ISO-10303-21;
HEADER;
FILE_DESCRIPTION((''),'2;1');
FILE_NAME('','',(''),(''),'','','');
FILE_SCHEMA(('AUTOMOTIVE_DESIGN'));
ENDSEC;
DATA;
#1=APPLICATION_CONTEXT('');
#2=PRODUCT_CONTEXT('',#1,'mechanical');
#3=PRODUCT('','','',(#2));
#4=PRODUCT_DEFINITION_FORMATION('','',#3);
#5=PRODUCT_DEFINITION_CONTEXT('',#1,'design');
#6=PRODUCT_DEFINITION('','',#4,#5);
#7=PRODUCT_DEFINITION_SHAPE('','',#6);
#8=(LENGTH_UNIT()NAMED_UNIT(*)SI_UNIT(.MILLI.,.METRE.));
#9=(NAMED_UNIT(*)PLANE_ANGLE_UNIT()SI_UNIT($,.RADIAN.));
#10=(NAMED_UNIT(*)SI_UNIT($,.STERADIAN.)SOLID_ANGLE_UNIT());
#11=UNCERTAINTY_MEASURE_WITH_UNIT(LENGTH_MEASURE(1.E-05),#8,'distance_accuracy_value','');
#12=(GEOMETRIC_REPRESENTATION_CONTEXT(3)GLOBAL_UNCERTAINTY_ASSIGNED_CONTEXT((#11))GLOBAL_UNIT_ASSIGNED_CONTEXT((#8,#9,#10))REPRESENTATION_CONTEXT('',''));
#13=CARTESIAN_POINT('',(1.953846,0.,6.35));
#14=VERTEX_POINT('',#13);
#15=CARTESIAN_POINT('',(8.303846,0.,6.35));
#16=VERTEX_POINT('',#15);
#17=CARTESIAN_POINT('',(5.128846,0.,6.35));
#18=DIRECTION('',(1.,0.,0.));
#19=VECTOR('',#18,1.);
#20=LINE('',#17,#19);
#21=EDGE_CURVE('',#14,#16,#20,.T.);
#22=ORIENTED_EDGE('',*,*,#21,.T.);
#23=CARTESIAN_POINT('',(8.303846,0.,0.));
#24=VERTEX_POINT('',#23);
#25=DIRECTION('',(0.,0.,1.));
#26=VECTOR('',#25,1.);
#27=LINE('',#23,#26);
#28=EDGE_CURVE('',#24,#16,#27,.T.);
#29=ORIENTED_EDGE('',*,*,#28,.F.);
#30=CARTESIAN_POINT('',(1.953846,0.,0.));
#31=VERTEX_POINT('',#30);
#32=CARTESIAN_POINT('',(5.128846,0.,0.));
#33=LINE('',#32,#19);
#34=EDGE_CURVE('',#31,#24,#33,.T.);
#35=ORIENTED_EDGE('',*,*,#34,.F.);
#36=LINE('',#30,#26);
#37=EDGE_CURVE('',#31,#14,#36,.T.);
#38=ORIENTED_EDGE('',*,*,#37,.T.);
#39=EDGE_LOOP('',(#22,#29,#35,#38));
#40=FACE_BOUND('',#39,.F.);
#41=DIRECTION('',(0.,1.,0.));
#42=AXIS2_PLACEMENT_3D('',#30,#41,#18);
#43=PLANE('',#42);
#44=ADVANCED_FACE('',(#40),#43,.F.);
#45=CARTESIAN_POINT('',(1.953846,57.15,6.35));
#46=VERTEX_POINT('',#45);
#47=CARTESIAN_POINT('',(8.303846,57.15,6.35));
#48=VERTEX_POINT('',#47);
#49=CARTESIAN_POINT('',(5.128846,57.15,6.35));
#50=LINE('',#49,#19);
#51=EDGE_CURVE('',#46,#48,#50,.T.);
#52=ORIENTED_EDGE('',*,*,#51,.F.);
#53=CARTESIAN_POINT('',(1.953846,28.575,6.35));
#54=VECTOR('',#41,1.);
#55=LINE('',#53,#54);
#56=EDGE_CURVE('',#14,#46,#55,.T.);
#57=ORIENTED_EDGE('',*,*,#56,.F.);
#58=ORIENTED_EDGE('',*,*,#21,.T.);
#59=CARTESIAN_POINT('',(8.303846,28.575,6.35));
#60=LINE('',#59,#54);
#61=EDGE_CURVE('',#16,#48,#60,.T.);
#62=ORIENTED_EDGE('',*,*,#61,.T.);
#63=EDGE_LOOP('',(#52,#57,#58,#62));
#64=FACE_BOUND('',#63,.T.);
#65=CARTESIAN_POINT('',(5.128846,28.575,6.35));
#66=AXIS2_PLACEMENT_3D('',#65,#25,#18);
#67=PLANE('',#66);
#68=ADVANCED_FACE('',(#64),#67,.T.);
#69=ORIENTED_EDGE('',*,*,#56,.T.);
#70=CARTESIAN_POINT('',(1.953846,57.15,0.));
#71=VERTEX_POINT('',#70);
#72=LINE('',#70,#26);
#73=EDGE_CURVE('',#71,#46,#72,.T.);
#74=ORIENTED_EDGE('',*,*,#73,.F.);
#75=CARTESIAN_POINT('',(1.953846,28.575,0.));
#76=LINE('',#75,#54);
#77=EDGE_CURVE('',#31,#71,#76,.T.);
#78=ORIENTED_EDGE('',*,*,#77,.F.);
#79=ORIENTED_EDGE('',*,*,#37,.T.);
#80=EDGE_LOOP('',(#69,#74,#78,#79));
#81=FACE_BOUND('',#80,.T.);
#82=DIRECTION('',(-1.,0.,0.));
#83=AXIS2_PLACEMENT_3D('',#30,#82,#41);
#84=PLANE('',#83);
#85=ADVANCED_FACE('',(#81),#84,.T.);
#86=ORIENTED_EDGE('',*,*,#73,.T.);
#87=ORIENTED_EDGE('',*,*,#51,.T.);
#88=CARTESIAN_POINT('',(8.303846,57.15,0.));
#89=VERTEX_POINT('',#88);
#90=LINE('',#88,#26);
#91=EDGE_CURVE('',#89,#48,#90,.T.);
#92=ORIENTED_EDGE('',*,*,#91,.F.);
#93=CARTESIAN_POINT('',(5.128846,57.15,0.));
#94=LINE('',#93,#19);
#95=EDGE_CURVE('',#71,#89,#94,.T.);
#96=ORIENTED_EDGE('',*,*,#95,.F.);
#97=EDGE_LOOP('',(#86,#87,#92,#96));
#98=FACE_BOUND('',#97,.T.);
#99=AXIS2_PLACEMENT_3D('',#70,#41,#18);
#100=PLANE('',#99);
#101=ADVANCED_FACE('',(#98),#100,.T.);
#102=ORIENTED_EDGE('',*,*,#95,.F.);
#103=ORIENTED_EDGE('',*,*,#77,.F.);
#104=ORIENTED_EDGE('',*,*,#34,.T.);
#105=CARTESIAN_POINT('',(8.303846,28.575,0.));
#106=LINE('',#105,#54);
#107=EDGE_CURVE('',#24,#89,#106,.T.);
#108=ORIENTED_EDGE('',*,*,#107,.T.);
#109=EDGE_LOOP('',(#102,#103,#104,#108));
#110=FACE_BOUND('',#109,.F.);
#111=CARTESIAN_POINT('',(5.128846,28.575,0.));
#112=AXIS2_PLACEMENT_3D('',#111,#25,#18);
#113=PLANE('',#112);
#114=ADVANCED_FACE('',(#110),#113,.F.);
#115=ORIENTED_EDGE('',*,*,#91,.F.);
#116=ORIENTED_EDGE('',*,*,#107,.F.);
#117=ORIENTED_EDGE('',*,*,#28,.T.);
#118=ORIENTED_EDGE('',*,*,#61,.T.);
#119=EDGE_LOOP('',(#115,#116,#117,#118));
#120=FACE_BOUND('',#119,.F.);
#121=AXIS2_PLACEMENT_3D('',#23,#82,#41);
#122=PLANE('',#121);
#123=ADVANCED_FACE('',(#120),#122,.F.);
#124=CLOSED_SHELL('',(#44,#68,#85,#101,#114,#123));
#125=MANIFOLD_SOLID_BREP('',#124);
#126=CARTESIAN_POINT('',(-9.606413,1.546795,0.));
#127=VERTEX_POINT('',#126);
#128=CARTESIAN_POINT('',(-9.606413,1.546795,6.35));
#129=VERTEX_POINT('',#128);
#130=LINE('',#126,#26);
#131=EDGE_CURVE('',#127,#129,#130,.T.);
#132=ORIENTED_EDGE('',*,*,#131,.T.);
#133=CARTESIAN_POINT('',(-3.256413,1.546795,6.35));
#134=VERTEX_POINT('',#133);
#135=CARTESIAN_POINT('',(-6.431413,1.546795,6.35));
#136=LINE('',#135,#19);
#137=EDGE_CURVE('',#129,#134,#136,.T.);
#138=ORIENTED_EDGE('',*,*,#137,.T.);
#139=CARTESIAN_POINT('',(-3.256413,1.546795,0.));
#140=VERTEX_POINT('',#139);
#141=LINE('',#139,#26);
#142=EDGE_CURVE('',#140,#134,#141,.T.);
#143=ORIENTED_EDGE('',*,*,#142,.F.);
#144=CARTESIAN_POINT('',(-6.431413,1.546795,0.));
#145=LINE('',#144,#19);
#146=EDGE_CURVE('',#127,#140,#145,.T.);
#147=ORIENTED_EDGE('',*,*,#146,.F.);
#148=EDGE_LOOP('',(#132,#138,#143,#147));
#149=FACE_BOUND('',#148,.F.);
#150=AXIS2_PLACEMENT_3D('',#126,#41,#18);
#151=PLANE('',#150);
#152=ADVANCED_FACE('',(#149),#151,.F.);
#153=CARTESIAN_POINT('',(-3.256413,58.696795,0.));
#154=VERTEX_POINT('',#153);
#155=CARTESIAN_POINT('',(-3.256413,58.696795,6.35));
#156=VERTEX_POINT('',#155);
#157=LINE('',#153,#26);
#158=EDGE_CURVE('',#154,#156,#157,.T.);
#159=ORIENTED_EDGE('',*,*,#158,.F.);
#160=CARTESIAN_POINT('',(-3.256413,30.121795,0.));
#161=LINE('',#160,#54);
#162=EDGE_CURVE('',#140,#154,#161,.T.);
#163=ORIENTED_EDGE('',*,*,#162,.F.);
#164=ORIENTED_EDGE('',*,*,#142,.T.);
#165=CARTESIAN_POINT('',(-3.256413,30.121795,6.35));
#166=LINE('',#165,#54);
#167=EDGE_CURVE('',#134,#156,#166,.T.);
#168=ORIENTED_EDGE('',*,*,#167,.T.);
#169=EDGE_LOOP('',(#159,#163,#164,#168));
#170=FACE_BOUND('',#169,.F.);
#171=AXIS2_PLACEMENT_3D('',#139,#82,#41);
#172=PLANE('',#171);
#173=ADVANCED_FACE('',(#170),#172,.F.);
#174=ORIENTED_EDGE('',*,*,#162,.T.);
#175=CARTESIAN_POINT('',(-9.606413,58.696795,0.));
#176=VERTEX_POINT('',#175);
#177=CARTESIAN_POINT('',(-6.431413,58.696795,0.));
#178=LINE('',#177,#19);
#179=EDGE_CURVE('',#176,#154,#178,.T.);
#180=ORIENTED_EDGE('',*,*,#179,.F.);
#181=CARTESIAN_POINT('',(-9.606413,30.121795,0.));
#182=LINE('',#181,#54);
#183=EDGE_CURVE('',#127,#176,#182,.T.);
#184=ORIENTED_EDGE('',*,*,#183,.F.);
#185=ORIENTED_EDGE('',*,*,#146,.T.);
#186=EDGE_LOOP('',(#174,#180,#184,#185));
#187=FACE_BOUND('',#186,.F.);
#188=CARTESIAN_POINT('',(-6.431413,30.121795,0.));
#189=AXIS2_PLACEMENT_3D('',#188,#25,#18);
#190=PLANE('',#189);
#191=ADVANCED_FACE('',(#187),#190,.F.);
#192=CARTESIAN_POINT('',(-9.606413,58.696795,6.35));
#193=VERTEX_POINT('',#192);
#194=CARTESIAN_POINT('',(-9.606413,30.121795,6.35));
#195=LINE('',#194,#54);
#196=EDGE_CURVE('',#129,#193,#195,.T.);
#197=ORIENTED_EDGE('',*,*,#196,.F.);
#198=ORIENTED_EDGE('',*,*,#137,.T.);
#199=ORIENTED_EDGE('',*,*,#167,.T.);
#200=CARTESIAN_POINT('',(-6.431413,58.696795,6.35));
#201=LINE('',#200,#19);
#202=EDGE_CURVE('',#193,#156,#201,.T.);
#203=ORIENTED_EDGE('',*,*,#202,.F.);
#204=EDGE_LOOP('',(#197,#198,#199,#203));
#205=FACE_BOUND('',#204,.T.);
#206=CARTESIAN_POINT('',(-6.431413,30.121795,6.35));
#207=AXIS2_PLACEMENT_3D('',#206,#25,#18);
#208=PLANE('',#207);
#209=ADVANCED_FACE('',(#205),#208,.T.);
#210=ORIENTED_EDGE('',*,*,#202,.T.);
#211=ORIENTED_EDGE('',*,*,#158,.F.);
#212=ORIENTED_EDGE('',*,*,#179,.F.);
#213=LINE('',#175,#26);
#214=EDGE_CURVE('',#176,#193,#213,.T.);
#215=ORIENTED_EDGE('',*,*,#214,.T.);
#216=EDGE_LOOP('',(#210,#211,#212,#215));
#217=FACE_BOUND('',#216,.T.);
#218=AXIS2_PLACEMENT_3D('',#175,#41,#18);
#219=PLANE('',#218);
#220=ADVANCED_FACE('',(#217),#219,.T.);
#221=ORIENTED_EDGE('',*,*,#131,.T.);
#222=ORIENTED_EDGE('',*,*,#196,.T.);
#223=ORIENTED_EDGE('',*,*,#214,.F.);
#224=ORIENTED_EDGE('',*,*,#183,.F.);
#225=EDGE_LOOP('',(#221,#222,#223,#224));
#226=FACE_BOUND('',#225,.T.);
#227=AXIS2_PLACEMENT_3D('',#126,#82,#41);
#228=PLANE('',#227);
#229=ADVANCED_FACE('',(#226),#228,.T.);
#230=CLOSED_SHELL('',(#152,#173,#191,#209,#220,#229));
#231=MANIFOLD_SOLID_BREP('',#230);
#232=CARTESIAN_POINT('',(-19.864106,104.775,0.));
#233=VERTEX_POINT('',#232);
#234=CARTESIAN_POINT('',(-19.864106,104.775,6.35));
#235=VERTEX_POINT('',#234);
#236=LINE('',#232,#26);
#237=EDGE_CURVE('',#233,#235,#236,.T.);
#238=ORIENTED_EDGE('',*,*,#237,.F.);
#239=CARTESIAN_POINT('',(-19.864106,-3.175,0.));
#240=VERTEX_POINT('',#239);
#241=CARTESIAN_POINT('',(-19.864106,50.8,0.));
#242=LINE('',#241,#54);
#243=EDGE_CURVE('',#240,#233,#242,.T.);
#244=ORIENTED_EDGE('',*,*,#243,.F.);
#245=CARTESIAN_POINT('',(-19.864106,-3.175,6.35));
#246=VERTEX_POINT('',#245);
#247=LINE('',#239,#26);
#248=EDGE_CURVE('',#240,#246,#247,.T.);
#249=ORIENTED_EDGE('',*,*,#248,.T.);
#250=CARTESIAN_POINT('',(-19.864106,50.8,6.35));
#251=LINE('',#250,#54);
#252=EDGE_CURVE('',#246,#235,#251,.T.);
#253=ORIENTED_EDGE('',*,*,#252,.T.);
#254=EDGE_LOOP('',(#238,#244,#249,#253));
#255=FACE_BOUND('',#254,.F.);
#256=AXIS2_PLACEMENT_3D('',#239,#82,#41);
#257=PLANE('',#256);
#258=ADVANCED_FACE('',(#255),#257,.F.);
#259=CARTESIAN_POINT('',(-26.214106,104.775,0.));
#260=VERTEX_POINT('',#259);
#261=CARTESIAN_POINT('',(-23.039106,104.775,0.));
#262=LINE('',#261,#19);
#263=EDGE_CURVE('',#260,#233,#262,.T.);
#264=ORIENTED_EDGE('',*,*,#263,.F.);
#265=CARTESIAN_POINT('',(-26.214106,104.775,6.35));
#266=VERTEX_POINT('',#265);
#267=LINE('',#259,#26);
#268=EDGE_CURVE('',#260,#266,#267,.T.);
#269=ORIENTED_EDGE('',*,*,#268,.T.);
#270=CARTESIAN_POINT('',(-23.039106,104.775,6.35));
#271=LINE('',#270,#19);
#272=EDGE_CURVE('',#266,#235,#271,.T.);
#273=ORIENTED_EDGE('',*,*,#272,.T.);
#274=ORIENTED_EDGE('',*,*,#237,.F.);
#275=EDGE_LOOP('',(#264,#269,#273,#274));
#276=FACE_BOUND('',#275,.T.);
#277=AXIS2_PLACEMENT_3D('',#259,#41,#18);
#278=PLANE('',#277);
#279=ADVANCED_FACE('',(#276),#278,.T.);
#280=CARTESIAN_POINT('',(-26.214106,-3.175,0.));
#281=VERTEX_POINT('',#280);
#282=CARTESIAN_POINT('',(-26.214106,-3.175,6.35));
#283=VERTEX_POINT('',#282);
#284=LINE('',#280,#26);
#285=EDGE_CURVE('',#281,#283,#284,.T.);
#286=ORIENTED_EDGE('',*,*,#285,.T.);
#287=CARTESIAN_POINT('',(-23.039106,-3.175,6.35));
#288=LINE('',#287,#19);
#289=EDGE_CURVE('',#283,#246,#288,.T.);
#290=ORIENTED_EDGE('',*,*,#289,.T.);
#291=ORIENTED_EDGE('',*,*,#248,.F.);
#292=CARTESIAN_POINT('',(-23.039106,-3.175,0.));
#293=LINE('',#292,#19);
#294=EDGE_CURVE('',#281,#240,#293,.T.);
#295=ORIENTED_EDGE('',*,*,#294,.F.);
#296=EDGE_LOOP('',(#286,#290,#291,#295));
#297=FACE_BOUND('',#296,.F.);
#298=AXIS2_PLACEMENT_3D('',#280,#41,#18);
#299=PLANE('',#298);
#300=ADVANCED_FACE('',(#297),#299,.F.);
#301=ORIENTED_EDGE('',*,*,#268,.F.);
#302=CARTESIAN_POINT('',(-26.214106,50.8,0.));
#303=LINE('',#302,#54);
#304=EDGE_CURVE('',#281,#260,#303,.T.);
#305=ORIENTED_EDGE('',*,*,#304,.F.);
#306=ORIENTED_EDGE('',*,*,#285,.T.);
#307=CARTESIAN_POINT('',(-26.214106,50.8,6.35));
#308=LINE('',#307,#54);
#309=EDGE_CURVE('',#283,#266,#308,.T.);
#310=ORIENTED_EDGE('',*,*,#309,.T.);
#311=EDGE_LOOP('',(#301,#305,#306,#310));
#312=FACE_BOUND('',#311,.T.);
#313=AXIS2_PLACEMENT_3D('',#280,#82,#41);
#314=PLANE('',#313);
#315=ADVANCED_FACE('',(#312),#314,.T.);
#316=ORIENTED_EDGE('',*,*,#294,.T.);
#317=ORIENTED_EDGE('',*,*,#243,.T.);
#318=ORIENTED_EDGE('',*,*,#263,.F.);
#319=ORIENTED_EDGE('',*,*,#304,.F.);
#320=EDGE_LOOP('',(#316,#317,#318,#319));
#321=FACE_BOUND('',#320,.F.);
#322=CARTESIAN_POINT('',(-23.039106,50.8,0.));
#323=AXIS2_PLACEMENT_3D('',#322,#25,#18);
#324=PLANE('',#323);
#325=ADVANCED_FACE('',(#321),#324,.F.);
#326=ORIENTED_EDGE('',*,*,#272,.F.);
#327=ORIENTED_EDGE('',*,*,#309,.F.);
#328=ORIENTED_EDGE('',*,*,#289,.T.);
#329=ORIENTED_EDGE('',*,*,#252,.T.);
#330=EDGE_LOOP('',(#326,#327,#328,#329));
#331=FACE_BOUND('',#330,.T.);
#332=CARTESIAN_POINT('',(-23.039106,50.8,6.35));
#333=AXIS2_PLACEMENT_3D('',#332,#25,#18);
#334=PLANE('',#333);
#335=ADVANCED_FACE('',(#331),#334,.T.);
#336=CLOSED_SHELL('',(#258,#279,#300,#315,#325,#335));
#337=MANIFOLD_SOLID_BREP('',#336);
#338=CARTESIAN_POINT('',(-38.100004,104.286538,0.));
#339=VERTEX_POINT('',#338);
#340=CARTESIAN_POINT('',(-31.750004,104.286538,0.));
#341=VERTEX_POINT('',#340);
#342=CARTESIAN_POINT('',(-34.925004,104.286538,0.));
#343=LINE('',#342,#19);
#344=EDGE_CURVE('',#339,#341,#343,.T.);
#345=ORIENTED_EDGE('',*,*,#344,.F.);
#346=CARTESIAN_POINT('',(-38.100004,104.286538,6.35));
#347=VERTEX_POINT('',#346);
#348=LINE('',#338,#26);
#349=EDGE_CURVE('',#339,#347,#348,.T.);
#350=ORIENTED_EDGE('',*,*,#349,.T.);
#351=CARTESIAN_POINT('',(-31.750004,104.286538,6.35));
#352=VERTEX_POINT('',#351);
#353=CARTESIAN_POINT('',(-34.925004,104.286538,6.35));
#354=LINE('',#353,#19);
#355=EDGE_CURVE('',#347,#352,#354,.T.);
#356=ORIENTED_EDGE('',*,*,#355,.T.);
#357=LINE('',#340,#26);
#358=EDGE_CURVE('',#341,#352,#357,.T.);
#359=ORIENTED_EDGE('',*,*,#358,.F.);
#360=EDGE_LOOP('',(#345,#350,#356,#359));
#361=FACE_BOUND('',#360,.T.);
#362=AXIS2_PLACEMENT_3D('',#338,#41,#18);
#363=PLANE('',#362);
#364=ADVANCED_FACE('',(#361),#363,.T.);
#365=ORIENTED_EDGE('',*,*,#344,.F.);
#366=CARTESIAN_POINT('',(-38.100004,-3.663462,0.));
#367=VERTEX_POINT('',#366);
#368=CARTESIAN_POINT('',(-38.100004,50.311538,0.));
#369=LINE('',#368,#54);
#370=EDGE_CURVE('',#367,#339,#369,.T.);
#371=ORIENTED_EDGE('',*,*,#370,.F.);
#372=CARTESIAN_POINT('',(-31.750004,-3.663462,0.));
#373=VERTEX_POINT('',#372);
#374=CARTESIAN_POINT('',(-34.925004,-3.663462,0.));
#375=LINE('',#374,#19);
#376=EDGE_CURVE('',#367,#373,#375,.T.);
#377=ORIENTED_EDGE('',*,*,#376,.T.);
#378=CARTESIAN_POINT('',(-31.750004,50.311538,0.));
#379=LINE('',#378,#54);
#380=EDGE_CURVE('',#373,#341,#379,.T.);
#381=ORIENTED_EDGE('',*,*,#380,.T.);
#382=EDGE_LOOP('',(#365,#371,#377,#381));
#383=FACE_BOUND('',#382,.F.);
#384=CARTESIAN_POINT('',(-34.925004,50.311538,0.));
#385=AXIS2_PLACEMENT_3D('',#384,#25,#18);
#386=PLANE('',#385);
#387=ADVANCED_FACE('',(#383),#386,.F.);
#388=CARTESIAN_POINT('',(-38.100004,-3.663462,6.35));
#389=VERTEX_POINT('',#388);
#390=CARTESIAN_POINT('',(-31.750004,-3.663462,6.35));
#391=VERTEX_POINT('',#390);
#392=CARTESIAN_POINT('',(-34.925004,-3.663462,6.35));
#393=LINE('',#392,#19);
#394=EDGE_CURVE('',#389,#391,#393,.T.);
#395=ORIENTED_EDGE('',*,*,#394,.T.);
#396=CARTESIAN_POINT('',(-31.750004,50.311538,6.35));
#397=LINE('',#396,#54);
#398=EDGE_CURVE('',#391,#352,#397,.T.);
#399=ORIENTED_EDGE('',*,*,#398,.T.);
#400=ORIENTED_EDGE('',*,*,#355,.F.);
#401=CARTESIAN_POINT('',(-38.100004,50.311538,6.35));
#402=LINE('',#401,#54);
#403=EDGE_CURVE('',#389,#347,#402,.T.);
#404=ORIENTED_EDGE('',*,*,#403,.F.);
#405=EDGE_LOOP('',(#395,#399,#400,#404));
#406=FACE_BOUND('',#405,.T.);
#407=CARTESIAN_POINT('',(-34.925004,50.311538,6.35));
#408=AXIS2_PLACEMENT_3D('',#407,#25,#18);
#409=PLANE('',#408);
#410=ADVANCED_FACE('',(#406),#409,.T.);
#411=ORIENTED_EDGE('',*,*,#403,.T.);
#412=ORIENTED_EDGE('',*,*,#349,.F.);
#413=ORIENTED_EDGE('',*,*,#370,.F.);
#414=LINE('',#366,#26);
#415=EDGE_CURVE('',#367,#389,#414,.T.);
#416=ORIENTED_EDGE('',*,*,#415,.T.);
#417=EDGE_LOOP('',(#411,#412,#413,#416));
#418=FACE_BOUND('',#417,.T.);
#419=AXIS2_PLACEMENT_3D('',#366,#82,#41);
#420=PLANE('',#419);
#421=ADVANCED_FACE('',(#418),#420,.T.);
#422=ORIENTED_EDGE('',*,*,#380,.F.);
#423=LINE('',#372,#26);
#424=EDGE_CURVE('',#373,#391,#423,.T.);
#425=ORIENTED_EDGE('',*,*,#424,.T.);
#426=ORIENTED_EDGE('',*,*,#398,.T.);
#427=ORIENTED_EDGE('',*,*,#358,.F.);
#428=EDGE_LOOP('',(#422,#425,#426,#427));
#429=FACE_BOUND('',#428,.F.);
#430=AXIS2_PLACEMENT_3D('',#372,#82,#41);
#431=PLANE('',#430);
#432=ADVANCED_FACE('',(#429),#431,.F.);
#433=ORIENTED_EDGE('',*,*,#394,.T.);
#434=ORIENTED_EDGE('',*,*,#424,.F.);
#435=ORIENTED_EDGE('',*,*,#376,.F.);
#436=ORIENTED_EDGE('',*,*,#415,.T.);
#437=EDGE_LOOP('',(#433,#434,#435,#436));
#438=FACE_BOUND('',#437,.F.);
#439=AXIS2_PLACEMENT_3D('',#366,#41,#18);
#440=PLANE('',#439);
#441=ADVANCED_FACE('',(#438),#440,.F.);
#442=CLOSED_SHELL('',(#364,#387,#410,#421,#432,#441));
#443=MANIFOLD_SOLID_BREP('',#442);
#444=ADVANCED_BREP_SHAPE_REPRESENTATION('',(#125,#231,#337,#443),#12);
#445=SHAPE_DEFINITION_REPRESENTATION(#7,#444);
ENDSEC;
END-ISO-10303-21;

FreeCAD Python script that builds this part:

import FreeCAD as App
import Part
import Sketcher
from FreeCAD import Vector
Q = App.Units.Quantity

doc = App.newDocument("Part")
body = doc.addObject("PartDesign::Body", "Body")
body.AllowCompound = True

sketch1 = doc.addObject("Sketcher::SketchObject", "Sketch")
body.addObject(sketch1)
sketch1.AttachmentSupport = (doc.XY_Plane, [""])
sketch1.MapMode = "FlatFace"
sketch1.addGeometry(Part.LineSegment(Vector(-38, 104, 0), Vector(-38, -4, 0)), False)
sketch1.addGeometry(Part.LineSegment(Vector(-38, -4, 0), Vector(-32, -4, 0)), False)
sketch1.addGeometry(Part.LineSegment(Vector(-32, -4, 0), Vector(-32, 104, 0)), False)
sketch1.addGeometry(Part.LineSegment(Vector(-32, 104, 0), Vector(-38, 104, 0)), False)
sketch1.addGeometry(Part.LineSegment(Vector(-26, 105, 0), Vector(-26, -3, 0)), False)
sketch1.addGeometry(Part.LineSegment(Vector(-26, -3, 0), Vector(-20, -3, 0)), False)
sketch1.addGeometry(Part.LineSegment(Vector(-20, -3, 0), Vector(-20, 105, 0)), False)
sketch1.addGeometry(Part.LineSegment(Vector(-20, 105, 0), Vector(-26, 105, 0)), False)
sketch1.addGeometry(Part.LineSegment(Vector(-10, 59, 0), Vector(-10, 2, 0)), False)
sketch1.addGeometry(Part.LineSegment(Vector(-10, 2, 0), Vector(-3, 2, 0)), False)
sketch1.addGeometry(Part.LineSegment(Vector(-3, 2, 0), Vector(-3, 59, 0)), False)
sketch1.addGeometry(Part.LineSegment(Vector(-3, 59, 0), Vector(-10, 59, 0)), False)
sketch1.addGeometry(Part.LineSegment(Vector(2, 57, 0), Vector(2, 0, 0)), False)
sketch1.addGeometry(Part.LineSegment(Vector(2, 0, 0), Vector(8, 0, 0)), False)
sketch1.addGeometry(Part.LineSegment(Vector(8, 0, 0), Vector(8, 57, 0)), False)
sketch1.addGeometry(Part.LineSegment(Vector(8, 57, 0), Vector(2, 57, 0)), False)
sketch1.addConstraint(Sketcher.Constraint("Coincident", 0, 2, 1, 1))
sketch1.addConstraint(Sketcher.Constraint("Coincident", 1, 2, 2, 1))
sketch1.addConstraint(Sketcher.Constraint("Coincident", 2, 2, 3, 1))
sketch1.addConstraint(Sketcher.Constraint("Coincident", 3, 2, 0, 1))
sketch1.addConstraint(Sketcher.Constraint("Coincident", 4, 2, 5, 1))
sketch1.addConstraint(Sketcher.Constraint("Coincident", 5, 2, 6, 1))
sketch1.addConstraint(Sketcher.Constraint("Coincident", 6, 2, 7, 1))
sketch1.addConstraint(Sketcher.Constraint("Coincident", 7, 2, 4, 1))
sketch1.addConstraint(Sketcher.Constraint("Coincident", 8, 2, 9, 1))
sketch1.addConstraint(Sketcher.Constraint("Coincident", 9, 2, 10, 1))
sketch1.addConstraint(Sketcher.Constraint("Coincident", 10, 2, 11, 1))
sketch1.addConstraint(Sketcher.Constraint("Coincident", 11, 2, 8, 1))
sketch1.addConstraint(Sketcher.Constraint("Coincident", 12, 2, 13, 1))
sketch1.addConstraint(Sketcher.Constraint("Coincident", 13, 2, 14, 1))
sketch1.addConstraint(Sketcher.Constraint("Coincident", 14, 2, 15, 1))
sketch1.addConstraint(Sketcher.Constraint("Coincident", 15, 2, 12, 1))
sketch1.addConstraint(Sketcher.Constraint("Vertical", 0))
sketch1.addConstraint(Sketcher.Constraint("Horizontal", 1))
sketch1.addConstraint(Sketcher.Constraint("Vertical", 2))
sketch1.addConstraint(Sketcher.Constraint("Horizontal", 3))
sketch1.addConstraint(Sketcher.Constraint("Vertical", 4))
sketch1.addConstraint(Sketcher.Constraint("Horizontal", 5))
sketch1.addConstraint(Sketcher.Constraint("Vertical", 6))
sketch1.addConstraint(Sketcher.Constraint("Horizontal", 7))
sketch1.addConstraint(Sketcher.Constraint("Vertical", 8))
sketch1.addConstraint(Sketcher.Constraint("Horizontal", 9))
sketch1.addConstraint(Sketcher.Constraint("Vertical", 10))
sketch1.addConstraint(Sketcher.Constraint("Horizontal", 11))
sketch1.addConstraint(Sketcher.Constraint("Vertical", 12))
sketch1.addConstraint(Sketcher.Constraint("Horizontal", 13))
sketch1.addConstraint(Sketcher.Constraint("Vertical", 14))
sketch1.addConstraint(Sketcher.Constraint("Horizontal", 15))
sketch1.addConstraint(Sketcher.Constraint("PointOnObject", 12, 2, -1))
sketch1.addConstraint(Sketcher.Constraint("Equal", 3, 5))
sketch1.addConstraint(Sketcher.Constraint("Equal", 7, 9))
sketch1.addConstraint(Sketcher.Constraint("Equal", 11, 13))
sketch1.addConstraint(Sketcher.Constraint("Equal", 2, 4))
sketch1.addConstraint(Sketcher.Constraint("Equal", 10, 12))
sketch1.addConstraint(Sketcher.Constraint("DistanceX", 1, 1, 1, 2, Q("0.25 in")))
sketch1.addConstraint(Sketcher.Constraint("DistanceY", 0, 2, 0, 1, Q("4.25 in")))
sketch1.addConstraint(Sketcher.Constraint("DistanceY", 8, 2, 8, 1, Q("2.25 in")))
sketch1.addConstraint(Sketcher.Constraint("DistanceX", 0, 2, -1, 1, Q("1.5000002 in")))
sketch1.addConstraint(Sketcher.Constraint("DistanceY", 4, 2, -1, 1, Q("0.125 in")))
sketch1.addConstraint(Sketcher.Constraint("DistanceX", 1, 2, 5, 2, Q("11.885898 mm")))
sketch1.addConstraint(Sketcher.Constraint("DistanceY", 0, 2, -1, 1, Q("3.663462 mm")))
sketch1.addConstraint(Sketcher.Constraint("DistanceX", 1, 2, 8, 2, Q("22.143591 mm")))
sketch1.addConstraint(Sketcher.Constraint("DistanceX", 9, 2, 12, 2, Q("5.210259 mm")))
sketch1.addConstraint(Sketcher.Constraint("DistanceY", -1, 1, 8, 2, Q("1.546795 mm")))
pad1 = doc.addObject("PartDesign::Pad", "Pad")
body.addObject(pad1)
pad1.Profile = sketch1
pad1.Length = Q("0.25 in")

doc.recompute()
